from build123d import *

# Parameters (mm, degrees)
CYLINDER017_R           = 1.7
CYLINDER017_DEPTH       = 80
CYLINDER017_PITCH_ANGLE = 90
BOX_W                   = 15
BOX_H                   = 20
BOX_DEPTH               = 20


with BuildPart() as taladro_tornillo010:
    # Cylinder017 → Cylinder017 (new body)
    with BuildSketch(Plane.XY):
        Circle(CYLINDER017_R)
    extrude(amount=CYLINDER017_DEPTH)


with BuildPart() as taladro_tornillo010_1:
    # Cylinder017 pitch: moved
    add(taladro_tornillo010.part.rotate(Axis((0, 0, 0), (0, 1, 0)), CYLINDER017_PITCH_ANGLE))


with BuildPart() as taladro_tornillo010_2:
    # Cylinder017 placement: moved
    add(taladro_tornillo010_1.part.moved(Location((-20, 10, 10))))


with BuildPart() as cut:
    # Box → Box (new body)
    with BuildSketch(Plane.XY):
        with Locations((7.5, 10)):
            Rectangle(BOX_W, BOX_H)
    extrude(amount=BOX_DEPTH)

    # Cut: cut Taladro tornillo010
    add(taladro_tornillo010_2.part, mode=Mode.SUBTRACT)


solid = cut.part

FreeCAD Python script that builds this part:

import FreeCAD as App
import Part
import Sketcher

V = App.Vector

doc = App.newDocument("Part")
params = doc.addObject("Spreadsheet::Sheet", "Params")
for row, (alias, value) in enumerate([
    ("sketch1_diameter", "3.4 mm"),
    ("pad1_length", "80 mm"),
    ("sketch2_width", "15 mm"),
    ("sketch2_height", "20 mm"),
    ("pad2_length", "20 mm"),
], start=1):
    params.set(f"A{row}", alias)
    params.set(f"B{row}", "=" + value)
    params.setAlias(f"B{row}", alias)

body = doc.addObject("PartDesign::Body", "Body")

# Sketch on XY plane
sketch1 = body.newObject("Sketcher::SketchObject", "Sketch")
sketch1.AttachmentSupport = (doc.getObject("XY_Plane"), [""])
sketch1.MapMode = "FlatFace"
sketch1.addGeometry(Part.Circle(V(0, 0, 0), V(0, 0, 1), 1.7), False)
sketch1.addConstraint([
    Sketcher.Constraint("Coincident", 0, 3, -1, 1),
    Sketcher.Constraint("Diameter", 0, 3.4),
])
sketch1.setExpression("Constraints[1]", "Params.sketch1_diameter")
pad1 = body.newObject("PartDesign::Pad", "Pad")
pad1.Profile = sketch1
pad1.setExpression("Length", "Params.pad1_length")
body2 = doc.addObject("PartDesign::Body", "Body001")
doc.recompute()

body.Placement = App.Placement(V(0, 0, 0), App.Rotation(V(0, 1, 0), 90))
boolean = body2.newObject("PartDesign::Boolean", "Boolean")
boolean.Type = "Fuse"
boolean.addObjects([body])
body3 = doc.addObject("PartDesign::Body", "Body002")
doc.recompute()

body2.Placement = App.Placement(V(-20, 10, 10), App.Rotation(V(0, 0, 1), 0))
boolean2 = body3.newObject("PartDesign::Boolean", "Boolean001")
boolean2.Type = "Fuse"
boolean2.addObjects([body2])
body4 = doc.addObject("PartDesign::Body", "Body003")

# Sketch on XY plane
sketch2 = body4.newObject("Sketcher::SketchObject", "Sketch001")
sketch2.AttachmentSupport = (doc.getObject("XY_Plane003"), [""])
sketch2.MapMode = "FlatFace"
sketch2.addGeometry([
    Part.LineSegment(V(0, 20, 0), V(0, 0, 0)),
    Part.LineSegment(V(0, 0, 0), V(15, 0, 0)),
    Part.LineSegment(V(15, 0, 0), V(15, 20, 0)),
    Part.LineSegment(V(15, 20, 0), V(0, 20, 0)),
], False)
sketch2.addConstraint([
    Sketcher.Constraint("Coincident", 0, 2, 1, 1),
    Sketcher.Constraint("Coincident", 1, 2, 2, 1),
    Sketcher.Constraint("Coincident", 2, 2, 3, 1),
    Sketcher.Constraint("Coincident", 3, 2, 0, 1),
    Sketcher.Constraint("Vertical", 0),
    Sketcher.Constraint("Horizontal", 1),
    Sketcher.Constraint("Vertical", 2),
    Sketcher.Constraint("Horizontal", 3),
    Sketcher.Constraint("Coincident", 0, 2, -1, 1),
    Sketcher.Constraint("DistanceX", 1, 1, 1, 2, 15.0),
    Sketcher.Constraint("DistanceY", 0, 2, 0, 1, 20.0),
])
sketch2.setExpression("Constraints[9]", "Params.sketch2_width")
sketch2.setExpression("Constraints[10]", "Params.sketch2_height")
pad2 = body4.newObject("PartDesign::Pad", "Pad001")
pad2.Profile = sketch2
pad2.setExpression("Length", "Params.pad2_length")
doc.recompute()

boolean3 = body4.newObject("PartDesign::Boolean", "Boolean002")
boolean3.Type = "Cut"
boolean3.addObjects([body3])

doc.recompute()
